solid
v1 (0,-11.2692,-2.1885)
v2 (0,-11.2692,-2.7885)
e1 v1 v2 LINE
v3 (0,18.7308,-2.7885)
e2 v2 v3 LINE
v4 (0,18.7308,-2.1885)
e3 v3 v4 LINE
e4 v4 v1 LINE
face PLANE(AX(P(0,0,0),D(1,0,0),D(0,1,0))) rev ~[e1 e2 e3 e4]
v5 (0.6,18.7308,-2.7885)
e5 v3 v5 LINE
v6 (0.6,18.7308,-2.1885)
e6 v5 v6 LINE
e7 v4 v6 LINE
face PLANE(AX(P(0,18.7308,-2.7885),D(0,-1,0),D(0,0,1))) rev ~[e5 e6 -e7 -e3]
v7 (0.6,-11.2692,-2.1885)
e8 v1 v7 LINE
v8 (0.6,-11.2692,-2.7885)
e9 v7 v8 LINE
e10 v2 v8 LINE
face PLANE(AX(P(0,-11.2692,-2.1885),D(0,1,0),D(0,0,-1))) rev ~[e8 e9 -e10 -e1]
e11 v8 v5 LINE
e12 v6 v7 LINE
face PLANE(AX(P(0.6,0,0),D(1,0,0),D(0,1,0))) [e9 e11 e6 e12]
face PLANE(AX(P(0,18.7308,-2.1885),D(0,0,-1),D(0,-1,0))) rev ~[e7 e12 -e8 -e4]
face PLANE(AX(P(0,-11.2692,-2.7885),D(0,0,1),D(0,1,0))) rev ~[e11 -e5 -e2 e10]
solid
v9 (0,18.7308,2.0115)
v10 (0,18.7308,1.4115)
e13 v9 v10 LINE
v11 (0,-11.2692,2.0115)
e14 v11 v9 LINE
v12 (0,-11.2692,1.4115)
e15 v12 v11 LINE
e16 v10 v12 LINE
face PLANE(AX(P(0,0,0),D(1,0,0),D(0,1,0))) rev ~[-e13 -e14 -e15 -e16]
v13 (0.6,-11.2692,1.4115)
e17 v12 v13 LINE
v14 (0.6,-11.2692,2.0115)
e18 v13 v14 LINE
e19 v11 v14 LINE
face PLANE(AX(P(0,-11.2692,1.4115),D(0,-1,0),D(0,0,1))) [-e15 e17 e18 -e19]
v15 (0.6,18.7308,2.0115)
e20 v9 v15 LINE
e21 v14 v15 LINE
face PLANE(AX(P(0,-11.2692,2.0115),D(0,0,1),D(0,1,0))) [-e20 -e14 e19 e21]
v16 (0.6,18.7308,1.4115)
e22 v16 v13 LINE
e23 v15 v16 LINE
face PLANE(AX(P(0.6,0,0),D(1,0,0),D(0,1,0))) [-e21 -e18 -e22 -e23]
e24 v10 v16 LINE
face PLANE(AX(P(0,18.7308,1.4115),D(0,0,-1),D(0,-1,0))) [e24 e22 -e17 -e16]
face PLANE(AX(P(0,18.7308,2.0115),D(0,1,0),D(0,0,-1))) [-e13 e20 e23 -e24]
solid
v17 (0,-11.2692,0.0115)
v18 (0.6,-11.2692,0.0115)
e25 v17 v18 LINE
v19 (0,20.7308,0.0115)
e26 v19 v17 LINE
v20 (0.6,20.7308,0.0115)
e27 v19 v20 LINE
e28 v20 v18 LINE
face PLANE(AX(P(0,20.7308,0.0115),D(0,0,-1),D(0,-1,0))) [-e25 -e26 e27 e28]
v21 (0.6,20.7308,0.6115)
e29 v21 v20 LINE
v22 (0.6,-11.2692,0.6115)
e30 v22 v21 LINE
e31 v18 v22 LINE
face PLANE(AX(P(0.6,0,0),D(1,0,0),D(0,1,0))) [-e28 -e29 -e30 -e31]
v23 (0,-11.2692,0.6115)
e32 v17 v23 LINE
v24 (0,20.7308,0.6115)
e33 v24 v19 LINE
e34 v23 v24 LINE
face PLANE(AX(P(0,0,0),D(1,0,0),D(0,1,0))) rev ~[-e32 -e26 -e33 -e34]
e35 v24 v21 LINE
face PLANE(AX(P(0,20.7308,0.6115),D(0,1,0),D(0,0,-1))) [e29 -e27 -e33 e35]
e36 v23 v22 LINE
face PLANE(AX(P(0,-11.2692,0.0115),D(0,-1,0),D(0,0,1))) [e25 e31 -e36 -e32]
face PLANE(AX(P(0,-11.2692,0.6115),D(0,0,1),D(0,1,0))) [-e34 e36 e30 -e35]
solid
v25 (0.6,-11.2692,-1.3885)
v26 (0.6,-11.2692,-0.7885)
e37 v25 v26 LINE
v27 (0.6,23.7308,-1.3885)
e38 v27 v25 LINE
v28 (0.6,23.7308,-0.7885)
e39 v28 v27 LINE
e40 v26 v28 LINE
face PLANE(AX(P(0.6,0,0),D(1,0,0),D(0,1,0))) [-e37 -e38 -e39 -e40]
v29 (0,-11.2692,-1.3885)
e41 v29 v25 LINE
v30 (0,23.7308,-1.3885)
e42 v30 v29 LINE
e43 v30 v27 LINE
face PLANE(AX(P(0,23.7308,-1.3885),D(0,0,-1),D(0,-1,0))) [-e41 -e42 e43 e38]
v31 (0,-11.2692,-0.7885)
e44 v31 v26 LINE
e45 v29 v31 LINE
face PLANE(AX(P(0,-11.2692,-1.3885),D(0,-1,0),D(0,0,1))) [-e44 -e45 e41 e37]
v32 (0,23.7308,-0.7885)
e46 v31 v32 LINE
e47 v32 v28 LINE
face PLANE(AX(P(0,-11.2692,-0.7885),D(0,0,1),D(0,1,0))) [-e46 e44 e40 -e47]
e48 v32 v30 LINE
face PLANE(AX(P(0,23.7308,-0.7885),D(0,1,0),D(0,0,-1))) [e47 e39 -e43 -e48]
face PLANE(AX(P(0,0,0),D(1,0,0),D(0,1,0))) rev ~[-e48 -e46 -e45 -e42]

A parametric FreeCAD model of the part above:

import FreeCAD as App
import Part
import Sketcher

V = App.Vector
Q = App.Units.Quantity

doc = App.newDocument("Part")
body = doc.addObject("PartDesign::Body", "Body")
body.AllowCompound = True

# Sketch on YZ plane
sketch1 = body.newObject("Sketcher::SketchObject", "Sketch")
sketch1.AttachmentSupport = (doc.getObject("YZ_Plane"), [""])
sketch1.MapMode = "FlatFace"
sketch1.addGeometry([
    Part.LineSegment(V(18.7308, -2.1885, 0), V(-11.2692, -2.1885, 0)),  # 0
    Part.LineSegment(V(-11.2692, -2.1885, 0), V(-11.2692, -2.7885, 0)),  # 1
    Part.LineSegment(V(-11.2692, -2.7885, 0), V(18.7308, -2.7885, 0)),  # 2
    Part.LineSegment(V(18.7308, -2.7885, 0), V(18.7308, -2.1885, 0)),  # 3
    Part.LineSegment(V(-11.2692, -1.3885, 0), V(23.7308, -1.3885, 0)),  # 4
    Part.LineSegment(V(23.7308, -1.3885, 0), V(23.7308, -0.7885, 0)),  # 5
    Part.LineSegment(V(23.7308, -0.7885, 0), V(-11.2692, -0.7885, 0)),  # 6
    Part.LineSegment(V(-11.2692, -0.7885, 0), V(-11.2692, -1.3885, 0)),  # 7
    Part.LineSegment(V(-11.2692, 0.6115, 0), V(-11.2692, 0.0115, 0)),  # 8
    Part.LineSegment(V(-11.2692, 0.0115, 0), V(20.7308, 0.0115, 0)),  # 9
    Part.LineSegment(V(20.7308, 0.0115, 0), V(20.7308, 0.6115, 0)),  # 10
    Part.LineSegment(V(20.7308, 0.6115, 0), V(-11.2692, 0.6115, 0)),  # 11
    Part.LineSegment(V(-11.2692, 2.0115, 0), V(-11.2692, 1.4115, 0)),  # 12
    Part.LineSegment(V(-11.2692, 1.4115, 0), V(18.7308, 1.4115, 0)),  # 13
    Part.LineSegment(V(18.7308, 1.4115, 0), V(18.7308, 2.0115, 0)),  # 14
    Part.LineSegment(V(18.7308, 2.0115, 0), V(-11.2692, 2.0115, 0)),  # 15
], False)
sketch1.addConstraint([
    Sketcher.Constraint("Coincident", 0, 2, 1, 1),
    Sketcher.Constraint("Coincident", 1, 2, 2, 1),
    Sketcher.Constraint("Coincident", 2, 2, 3, 1),
    Sketcher.Constraint("Coincident", 3, 2, 0, 1),
    Sketcher.Constraint("Coincident", 4, 2, 5, 1),
    Sketcher.Constraint("Coincident", 5, 2, 6, 1),
    Sketcher.Constraint("Coincident", 6, 2, 7, 1),
    Sketcher.Constraint("Coincident", 7, 2, 4, 1),
    Sketcher.Constraint("Coincident", 8, 2, 9, 1),
    Sketcher.Constraint("Coincident", 9, 2, 10, 1),
    Sketcher.Constraint("Coincident", 10, 2, 11, 1),
    Sketcher.Constraint("Coincident", 11, 2, 8, 1),
    Sketcher.Constraint("Coincident", 12, 2, 13, 1),
    Sketcher.Constraint("Coincident", 13, 2, 14, 1),
    Sketcher.Constraint("Coincident", 14, 2, 15, 1),
    Sketcher.Constraint("Coincident", 15, 2, 12, 1),
    Sketcher.Constraint("Horizontal", 0),
    Sketcher.Constraint("Vertical", 1),
    Sketcher.Constraint("Horizontal", 2),
    Sketcher.Constraint("Vertical", 3),
    Sketcher.Constraint("Horizontal", 4),
    Sketcher.Constraint("Vertical", 5),
    Sketcher.Constraint("Horizontal", 6),
    Sketcher.Constraint("Vertical", 7),
    Sketcher.Constraint("Vertical", 8),
    Sketcher.Constraint("Horizontal", 9),
    Sketcher.Constraint("Vertical", 10),
    Sketcher.Constraint("Horizontal", 11),
    Sketcher.Constraint("Vertical", 12),
    Sketcher.Constraint("Horizontal", 13),
    Sketcher.Constraint("Vertical", 14),
    Sketcher.Constraint("Horizontal", 15),
    Sketcher.Constraint("Vertical", 1, 2, 6, 2),
    Sketcher.Constraint("Vertical", 7, 2, 8, 2),
    Sketcher.Constraint("Vertical", 11, 2, 12, 2),
    Sketcher.Constraint("Vertical", 3, 2, 13, 2),
    Sketcher.Constraint("Equal", 3, 5),
    Sketcher.Constraint("Equal", 7, 8),
    Sketcher.Constraint("Equal", 10, 12),
    Sketcher.Constraint("DistanceX", 0, 2, 0, 1, Q("30 mm")),
    Sketcher.Constraint("DistanceX", 4, 1, 4, 2, Q("35 mm")),
    Sketcher.Constraint("DistanceX", 9, 1, 9, 2, Q("32 mm")),
    Sketcher.Constraint("DistanceY", 1, 2, 1, 1, Q("0.6 mm")),
    Sketcher.Constraint("DistanceY", 3, 2, 4, 2, Q("0.8 mm")),
    Sketcher.Constraint("DistanceY", 6, 2, 8, 2, Q("0.8 mm")),
    Sketcher.Constraint("DistanceY", 11, 2, 12, 2, Q("0.8 mm")),
    Sketcher.Constraint("DistanceX", 0, 2, -1, 1, Q("11.2692 mm")),
    Sketcher.Constraint("DistanceY", 0, 2, -1, 1, Q("2.1885 mm")),
])
pad1 = body.newObject("PartDesign::Pad", "Pad")
pad1.Profile = sketch1
pad1.Length = 0.6

doc.recompute()
